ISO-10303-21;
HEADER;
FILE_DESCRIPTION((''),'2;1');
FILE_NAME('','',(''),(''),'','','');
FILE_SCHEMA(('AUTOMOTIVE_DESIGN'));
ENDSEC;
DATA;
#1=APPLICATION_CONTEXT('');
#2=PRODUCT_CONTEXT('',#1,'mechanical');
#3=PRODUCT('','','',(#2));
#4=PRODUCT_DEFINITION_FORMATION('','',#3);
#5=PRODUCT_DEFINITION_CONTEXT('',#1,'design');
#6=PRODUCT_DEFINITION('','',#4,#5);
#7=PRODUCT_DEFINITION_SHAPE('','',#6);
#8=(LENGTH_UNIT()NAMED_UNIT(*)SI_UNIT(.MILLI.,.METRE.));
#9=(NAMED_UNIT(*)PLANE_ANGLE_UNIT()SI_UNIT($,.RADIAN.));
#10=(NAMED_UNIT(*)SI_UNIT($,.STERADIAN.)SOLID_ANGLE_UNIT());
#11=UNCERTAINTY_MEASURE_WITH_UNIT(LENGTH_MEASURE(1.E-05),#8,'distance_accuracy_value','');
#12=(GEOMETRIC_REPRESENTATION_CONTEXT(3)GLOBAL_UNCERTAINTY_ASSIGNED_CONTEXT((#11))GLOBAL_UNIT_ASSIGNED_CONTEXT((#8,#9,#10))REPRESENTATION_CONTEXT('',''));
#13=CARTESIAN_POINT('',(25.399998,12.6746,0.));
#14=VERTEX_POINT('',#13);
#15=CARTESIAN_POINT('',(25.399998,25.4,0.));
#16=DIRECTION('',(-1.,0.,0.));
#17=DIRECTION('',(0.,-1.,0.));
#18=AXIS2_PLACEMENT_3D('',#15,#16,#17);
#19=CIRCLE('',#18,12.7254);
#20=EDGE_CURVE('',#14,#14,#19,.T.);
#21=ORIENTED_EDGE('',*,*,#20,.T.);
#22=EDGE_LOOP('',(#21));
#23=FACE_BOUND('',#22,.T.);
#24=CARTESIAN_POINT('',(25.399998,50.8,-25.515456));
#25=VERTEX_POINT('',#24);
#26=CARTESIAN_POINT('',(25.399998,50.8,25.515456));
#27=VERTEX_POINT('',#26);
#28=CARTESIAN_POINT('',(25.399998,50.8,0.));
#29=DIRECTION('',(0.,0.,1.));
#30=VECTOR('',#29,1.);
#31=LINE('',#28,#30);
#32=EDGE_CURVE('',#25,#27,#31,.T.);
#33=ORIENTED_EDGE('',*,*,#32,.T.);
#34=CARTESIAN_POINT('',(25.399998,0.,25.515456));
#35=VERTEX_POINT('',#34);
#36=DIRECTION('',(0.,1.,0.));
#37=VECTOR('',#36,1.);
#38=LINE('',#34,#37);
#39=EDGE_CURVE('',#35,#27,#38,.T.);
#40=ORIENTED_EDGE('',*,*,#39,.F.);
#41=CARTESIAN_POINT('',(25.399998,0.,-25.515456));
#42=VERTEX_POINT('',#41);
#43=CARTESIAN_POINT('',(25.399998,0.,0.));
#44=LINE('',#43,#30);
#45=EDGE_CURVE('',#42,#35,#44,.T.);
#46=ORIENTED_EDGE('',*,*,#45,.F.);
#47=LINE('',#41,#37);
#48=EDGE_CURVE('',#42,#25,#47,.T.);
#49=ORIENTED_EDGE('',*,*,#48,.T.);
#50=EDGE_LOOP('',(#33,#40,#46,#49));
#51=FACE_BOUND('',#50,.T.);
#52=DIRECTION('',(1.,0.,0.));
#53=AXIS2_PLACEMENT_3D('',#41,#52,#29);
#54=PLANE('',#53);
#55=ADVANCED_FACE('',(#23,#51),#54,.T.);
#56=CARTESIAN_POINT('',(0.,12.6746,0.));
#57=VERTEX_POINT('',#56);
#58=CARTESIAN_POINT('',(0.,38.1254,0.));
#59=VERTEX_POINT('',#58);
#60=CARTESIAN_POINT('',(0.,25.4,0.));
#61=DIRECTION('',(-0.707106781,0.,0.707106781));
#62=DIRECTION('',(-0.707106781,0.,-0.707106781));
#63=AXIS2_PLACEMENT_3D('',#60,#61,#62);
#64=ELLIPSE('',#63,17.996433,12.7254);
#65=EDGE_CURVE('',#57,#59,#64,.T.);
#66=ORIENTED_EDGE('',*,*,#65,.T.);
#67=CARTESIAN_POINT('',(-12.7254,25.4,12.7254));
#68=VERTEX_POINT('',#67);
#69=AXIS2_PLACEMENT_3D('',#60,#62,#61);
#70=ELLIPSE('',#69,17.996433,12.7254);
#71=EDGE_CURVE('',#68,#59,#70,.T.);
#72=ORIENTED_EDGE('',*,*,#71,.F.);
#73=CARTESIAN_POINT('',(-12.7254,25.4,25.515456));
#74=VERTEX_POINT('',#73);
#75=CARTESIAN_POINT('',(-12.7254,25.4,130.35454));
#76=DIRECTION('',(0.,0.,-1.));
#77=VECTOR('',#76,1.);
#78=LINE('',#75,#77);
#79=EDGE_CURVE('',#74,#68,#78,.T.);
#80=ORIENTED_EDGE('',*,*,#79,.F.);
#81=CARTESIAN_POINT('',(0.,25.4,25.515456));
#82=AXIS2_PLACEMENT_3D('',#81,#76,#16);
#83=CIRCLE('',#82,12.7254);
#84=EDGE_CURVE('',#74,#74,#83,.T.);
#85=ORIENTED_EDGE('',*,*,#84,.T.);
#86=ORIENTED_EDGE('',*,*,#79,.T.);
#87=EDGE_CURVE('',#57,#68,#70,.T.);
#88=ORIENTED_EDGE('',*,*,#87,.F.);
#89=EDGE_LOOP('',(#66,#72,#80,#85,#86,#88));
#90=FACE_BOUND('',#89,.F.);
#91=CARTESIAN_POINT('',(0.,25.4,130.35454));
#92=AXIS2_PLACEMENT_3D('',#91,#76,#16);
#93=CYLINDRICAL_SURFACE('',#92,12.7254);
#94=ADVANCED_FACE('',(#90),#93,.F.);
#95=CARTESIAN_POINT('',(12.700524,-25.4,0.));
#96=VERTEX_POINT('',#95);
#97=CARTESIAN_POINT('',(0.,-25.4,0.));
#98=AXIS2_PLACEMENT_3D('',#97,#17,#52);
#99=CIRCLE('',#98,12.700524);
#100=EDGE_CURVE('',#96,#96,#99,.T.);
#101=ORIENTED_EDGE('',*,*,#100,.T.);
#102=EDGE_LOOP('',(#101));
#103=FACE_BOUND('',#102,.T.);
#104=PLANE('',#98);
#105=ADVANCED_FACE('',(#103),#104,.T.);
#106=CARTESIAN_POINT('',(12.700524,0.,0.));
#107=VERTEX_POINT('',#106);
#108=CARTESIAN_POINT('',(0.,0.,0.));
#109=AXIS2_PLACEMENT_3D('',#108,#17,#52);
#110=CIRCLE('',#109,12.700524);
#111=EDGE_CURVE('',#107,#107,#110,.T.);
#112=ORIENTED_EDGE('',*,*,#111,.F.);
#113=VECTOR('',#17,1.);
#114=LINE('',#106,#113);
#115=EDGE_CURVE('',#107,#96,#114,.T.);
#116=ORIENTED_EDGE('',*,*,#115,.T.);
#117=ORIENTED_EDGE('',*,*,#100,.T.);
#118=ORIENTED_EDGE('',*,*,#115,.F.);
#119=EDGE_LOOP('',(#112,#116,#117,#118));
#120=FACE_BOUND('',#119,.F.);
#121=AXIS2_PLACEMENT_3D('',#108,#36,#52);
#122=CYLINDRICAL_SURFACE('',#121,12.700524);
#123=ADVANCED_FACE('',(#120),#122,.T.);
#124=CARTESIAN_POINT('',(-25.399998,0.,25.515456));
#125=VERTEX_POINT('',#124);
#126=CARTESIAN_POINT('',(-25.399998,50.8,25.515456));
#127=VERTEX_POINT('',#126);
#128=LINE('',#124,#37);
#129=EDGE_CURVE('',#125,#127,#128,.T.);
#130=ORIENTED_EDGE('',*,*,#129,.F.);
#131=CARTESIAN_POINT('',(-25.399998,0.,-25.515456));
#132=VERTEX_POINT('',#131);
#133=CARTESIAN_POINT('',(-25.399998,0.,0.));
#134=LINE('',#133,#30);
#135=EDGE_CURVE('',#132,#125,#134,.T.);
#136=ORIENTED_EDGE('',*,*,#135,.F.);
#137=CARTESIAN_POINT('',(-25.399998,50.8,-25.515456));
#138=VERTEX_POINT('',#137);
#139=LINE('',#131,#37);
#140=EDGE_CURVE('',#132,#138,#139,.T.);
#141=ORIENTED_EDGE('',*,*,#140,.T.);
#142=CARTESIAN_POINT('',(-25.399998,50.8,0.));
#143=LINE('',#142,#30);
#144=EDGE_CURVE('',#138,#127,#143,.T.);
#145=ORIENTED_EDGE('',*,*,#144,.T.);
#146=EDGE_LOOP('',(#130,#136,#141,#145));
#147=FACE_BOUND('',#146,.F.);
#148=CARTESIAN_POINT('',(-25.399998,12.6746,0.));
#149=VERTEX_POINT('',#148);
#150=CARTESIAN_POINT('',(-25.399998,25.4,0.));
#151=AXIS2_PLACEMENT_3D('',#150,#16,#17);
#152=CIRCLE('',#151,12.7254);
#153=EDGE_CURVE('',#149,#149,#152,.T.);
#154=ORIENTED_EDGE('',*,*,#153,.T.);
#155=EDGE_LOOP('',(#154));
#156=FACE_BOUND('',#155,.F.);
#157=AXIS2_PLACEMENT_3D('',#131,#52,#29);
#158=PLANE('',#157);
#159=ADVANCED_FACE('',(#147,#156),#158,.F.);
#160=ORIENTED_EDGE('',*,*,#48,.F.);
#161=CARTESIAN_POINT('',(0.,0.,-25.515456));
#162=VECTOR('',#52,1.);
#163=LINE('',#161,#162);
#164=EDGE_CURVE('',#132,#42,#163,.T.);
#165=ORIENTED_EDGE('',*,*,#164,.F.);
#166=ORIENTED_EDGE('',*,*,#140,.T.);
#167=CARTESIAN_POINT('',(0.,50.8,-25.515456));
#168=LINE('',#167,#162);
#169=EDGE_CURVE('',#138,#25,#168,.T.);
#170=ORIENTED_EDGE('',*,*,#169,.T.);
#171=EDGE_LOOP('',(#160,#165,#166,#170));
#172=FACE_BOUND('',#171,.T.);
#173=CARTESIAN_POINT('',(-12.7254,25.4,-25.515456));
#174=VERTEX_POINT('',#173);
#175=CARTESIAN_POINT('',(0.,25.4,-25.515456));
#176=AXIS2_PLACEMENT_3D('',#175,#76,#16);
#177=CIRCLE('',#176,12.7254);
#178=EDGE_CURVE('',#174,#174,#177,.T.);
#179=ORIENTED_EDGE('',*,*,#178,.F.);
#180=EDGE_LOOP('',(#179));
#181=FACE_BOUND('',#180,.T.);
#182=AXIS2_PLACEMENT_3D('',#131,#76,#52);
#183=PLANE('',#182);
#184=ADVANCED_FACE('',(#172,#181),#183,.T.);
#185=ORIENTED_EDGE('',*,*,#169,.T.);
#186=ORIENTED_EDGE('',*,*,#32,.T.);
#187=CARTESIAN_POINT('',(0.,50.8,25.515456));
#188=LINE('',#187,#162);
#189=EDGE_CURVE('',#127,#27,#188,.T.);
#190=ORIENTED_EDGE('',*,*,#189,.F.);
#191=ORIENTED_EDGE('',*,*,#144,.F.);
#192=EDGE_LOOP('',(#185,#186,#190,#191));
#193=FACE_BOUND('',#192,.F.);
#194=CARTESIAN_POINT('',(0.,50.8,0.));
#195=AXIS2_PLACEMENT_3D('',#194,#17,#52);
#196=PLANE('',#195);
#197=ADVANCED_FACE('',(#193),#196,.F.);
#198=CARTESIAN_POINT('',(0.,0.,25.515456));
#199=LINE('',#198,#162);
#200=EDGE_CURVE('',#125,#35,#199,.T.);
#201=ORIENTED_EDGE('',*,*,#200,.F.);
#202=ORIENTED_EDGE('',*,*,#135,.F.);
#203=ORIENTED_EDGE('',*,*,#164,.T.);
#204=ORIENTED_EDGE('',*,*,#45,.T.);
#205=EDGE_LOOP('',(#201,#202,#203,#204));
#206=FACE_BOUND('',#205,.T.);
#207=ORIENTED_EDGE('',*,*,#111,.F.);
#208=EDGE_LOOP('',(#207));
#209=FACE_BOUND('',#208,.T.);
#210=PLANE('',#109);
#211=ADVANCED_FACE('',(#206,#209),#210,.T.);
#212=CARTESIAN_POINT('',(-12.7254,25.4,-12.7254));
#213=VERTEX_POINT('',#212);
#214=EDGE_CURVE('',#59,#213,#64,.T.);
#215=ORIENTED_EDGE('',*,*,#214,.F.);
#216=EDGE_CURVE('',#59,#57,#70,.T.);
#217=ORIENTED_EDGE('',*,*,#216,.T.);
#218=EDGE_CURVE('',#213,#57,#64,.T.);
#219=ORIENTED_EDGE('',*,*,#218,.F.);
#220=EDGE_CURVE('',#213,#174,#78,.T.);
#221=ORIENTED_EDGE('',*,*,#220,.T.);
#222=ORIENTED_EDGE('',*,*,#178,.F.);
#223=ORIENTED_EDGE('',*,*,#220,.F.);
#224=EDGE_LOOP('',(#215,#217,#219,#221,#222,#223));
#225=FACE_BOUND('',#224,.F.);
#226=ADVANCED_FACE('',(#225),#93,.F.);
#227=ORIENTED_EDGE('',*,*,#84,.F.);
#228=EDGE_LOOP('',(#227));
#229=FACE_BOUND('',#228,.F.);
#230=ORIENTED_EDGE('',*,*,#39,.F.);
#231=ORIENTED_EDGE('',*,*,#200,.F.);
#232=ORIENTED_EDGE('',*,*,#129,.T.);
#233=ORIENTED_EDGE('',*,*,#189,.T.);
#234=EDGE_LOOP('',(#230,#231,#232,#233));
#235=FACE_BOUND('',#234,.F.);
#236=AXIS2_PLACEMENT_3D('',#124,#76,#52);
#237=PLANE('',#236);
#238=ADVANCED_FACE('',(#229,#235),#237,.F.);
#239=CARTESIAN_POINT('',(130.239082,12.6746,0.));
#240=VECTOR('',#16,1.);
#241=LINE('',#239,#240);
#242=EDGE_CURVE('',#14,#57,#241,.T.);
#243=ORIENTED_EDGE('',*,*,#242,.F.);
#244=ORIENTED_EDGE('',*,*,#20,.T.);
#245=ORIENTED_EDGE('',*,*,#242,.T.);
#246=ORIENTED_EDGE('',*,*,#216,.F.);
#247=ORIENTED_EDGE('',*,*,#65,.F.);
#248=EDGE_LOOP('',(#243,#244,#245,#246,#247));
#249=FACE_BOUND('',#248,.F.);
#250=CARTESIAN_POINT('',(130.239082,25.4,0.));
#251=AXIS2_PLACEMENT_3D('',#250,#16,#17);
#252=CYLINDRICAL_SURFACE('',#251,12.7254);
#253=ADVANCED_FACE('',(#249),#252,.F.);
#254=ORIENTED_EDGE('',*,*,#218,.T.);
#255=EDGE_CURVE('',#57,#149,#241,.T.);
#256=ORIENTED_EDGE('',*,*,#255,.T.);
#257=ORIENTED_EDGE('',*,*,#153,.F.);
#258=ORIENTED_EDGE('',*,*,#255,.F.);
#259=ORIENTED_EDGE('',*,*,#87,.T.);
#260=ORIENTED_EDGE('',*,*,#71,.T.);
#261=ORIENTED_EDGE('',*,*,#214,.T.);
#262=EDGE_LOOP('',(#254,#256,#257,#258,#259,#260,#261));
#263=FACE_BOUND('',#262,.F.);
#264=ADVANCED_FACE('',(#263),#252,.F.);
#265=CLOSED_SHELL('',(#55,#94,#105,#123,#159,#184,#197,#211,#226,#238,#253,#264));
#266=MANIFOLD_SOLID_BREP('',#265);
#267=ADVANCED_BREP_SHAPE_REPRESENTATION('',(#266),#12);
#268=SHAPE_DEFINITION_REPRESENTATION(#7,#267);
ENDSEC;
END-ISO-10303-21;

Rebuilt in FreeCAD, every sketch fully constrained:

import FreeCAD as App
import Part
import Sketcher

V = App.Vector
Q = App.Units.Quantity

doc = App.newDocument("Part")
params = doc.addObject("Spreadsheet::Sheet", "Params")
for row, (alias, value) in enumerate([
    ("pad1_length", "1 in"),
    ("sketch2_width", "1.9999998 in"),
    ("pad2_length", "2 in"),
    ("sketch3_diameter", "1.002 in"),
    ("hole_diameter", "1.002 in"),
    ("sketch4_diameter", "1.002 in"),
    ("hole2_diameter", "1.002 in"),
], start=1):
    params.set(f"A{row}", alias)
    params.set(f"B{row}", "=" + value)
    params.setAlias(f"B{row}", alias)

body = doc.addObject("PartDesign::Body", "Body")

# Sketch on XZ plane
sketch1 = doc.addObject("Sketcher::SketchObject", "Sketch")
body.addObject(sketch1)
sketch1.AttachmentSupport = (doc.XZ_Plane, [""])
sketch1.MapMode = "FlatFace"
sketch1.addGeometry(Part.Circle(V(0, 0, 0), V(0, 0, 1), 13), False)
sketch1.addConstraint([
    Sketcher.Constraint("Coincident", 0, 3, -1, 1),
    Sketcher.Constraint("Diameter", 0, 25.401048),
])
pad1 = doc.addObject("PartDesign::Pad", "Pad")
body.addObject(pad1)
pad1.Profile = sketch1
pad1.setExpression("Length", "Params.pad1_length")

# Sketch on XZ plane
sketch2 = doc.addObject("Sketcher::SketchObject", "Sketch001")
body.addObject(sketch2)
sketch2.AttachmentSupport = (doc.XZ_Plane, [""])
sketch2.MapMode = "FlatFace"
sketch2.addGeometry([
    Part.LineSegment(V(-25, 26, 0), V(-25, -26, 0)),
    Part.LineSegment(V(-25, -26, 0), V(25, -26, 0)),
    Part.LineSegment(V(25, -26, 0), V(25, 26, 0)),
    Part.LineSegment(V(25, 26, 0), V(-25, 26, 0)),
], False)
sketch2.addConstraint([
    Sketcher.Constraint("Coincident", 0, 2, 1, 1),
    Sketcher.Constraint("Coincident", 1, 2, 2, 1),
    Sketcher.Constraint("Coincident", 2, 2, 3, 1),
    Sketcher.Constraint("Coincident", 3, 2, 0, 1),
    Sketcher.Constraint("Vertical", 0),
    Sketcher.Constraint("Horizontal", 1),
    Sketcher.Constraint("Vertical", 2),
    Sketcher.Constraint("Horizontal", 3),
    Sketcher.Constraint("Symmetric", 0, 2, 2, 2, -1, 1),
    Sketcher.Constraint("DistanceX", 1, 1, 1, 2, Q("1.9999998 in")),
    Sketcher.Constraint("DistanceY", 0, 2, 0, 1, 51.030912),
])
sketch2.setExpression("Constraints[9]", "Params.sketch2_width")
pad2 = doc.addObject("PartDesign::Pad", "Pad001")
body.addObject(pad2)
pad2.Profile = sketch2
pad2.setExpression("Length", "Params.pad2_length")
pad2.Reversed = True

# Sketch on YZ plane
sketch3 = doc.addObject("Sketcher::SketchObject", "Sketch002")
body.addObject(sketch3)
sketch3.AttachmentSupport = (doc.YZ_Plane, [""])
sketch3.MapMode = "FlatFace"
sketch3.AttachmentOffset = App.Placement(V(0, 0, 0.9999999 * 25.4), App.Rotation())
sketch3.addGeometry(Part.Circle(V(25, 0, 0), V(0, 0, 1), 13), False)
sketch3.addConstraint([
    Sketcher.Constraint("PointOnObject", 0, 3, -1),
    Sketcher.Constraint("Diameter", 0, Q("1.002 in")),
    Sketcher.Constraint("DistanceX", -1, 1, 0, 3, Q("1 in")),
])
sketch3.setExpression("Constraints[1]", "Params.sketch3_diameter")
doc.recompute()
hole = doc.addObject("PartDesign::Hole", "Hole")
body.addObject(hole)
hole.Profile = sketch3
hole.ThreadType = "None"
hole.setExpression("Diameter", "Params.hole_diameter")
hole.DepthType = "ThroughAll"

# Sketch on XY plane
sketch4 = doc.addObject("Sketcher::SketchObject", "Sketch003")
body.addObject(sketch4)
sketch4.AttachmentSupport = (doc.XY_Plane, [""])
sketch4.MapMode = "FlatFace"
sketch4.AttachmentOffset = App.Placement(V(0, 0, 25.515456), App.Rotation())
sketch4.addGeometry(Part.Circle(V(0, 25, 0), V(0, 0, 1), 13), False)
sketch4.addConstraint([
    Sketcher.Constraint("PointOnObject", 0, 3, -2),
    Sketcher.Constraint("Diameter", 0, Q("1.002 in")),
    Sketcher.Constraint("DistanceY", -1, 1, 0, 3, Q("1 in")),
])
sketch4.setExpression("Constraints[1]", "Params.sketch4_diameter")
doc.recompute()
hole2 = doc.addObject("PartDesign::Hole", "Hole001")
body.addObject(hole2)
hole2.Profile = sketch4
hole2.ThreadType = "None"
hole2.setExpression("Diameter", "Params.hole2_diameter")
hole2.DepthType = "ThroughAll"

doc.recompute()
